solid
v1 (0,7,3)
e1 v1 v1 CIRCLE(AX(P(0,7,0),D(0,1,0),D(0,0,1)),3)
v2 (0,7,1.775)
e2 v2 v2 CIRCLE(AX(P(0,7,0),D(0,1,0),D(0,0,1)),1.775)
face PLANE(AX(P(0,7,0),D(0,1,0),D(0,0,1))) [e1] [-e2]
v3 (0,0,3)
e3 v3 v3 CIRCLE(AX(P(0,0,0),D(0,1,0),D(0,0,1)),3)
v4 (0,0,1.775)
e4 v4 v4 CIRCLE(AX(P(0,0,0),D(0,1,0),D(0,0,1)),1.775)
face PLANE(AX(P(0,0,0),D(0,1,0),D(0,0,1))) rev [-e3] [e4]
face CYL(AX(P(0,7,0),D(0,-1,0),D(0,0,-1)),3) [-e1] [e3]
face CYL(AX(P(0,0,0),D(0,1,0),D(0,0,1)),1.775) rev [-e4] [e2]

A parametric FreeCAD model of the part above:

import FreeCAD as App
import Part
import Sketcher
from FreeCAD import Vector

doc = App.newDocument("Part")
params = doc.addObject("Spreadsheet::Sheet", "Params")
for row, (alias, value) in enumerate([
    ("sketch1_diameter", "6 mm"),
    ("pad1_length", "7 mm"),
    ("sketch2_diameter", "3.55 mm"),
], start=1):
    params.set(f"A{row}", alias)
    params.set(f"B{row}", "=" + value)
    params.setAlias(f"B{row}", alias)

body = doc.addObject("PartDesign::Body", "Body")

# Sketch on XZ plane
sketch1 = body.newObject("Sketcher::SketchObject", "Sketch")
sketch1.AttachmentSupport = (doc.getObject("XZ_Plane"), [""])
sketch1.MapMode = "FlatFace"
sketch1.addGeometry(Part.Circle(Vector(0, 0, 0), Vector(0, 0, 1), 3), False)
sketch1.addConstraint([
    Sketcher.Constraint("Coincident", 0, 3, -1, 1),
    Sketcher.Constraint("Diameter", 0, 6.0),
])
sketch1.setExpression("Constraints[1]", "Params.sketch1_diameter")
pad1 = body.newObject("PartDesign::Pad", "Pad")
pad1.Profile = sketch1
pad1.setExpression("Length", "Params.pad1_length")
pad1.Reversed = True

# Sketch on XZ plane
sketch2 = body.newObject("Sketcher::SketchObject", "Sketch001")
sketch2.AttachmentSupport = (doc.getObject("XZ_Plane"), [""])
sketch2.MapMode = "FlatFace"
sketch2.AttachmentOffset = App.Placement(Vector(0, 0, -7), App.Rotation())
sketch2.addGeometry(Part.Circle(Vector(0, 0, 0), Vector(0, 0, 1), 1.8), False)
sketch2.addConstraint([
    Sketcher.Constraint("Coincident", 0, 3, -1, 1),
    Sketcher.Constraint("Diameter", 0, 3.55),
])
sketch2.setExpression("Constraints[1]", "Params.sketch2_diameter")
pocket1 = body.newObject("PartDesign::Pocket", "Pocket")
pocket1.Profile = sketch2
pocket1.Type = "ThroughAll"
pocket1.Reversed = True

doc.recompute()
